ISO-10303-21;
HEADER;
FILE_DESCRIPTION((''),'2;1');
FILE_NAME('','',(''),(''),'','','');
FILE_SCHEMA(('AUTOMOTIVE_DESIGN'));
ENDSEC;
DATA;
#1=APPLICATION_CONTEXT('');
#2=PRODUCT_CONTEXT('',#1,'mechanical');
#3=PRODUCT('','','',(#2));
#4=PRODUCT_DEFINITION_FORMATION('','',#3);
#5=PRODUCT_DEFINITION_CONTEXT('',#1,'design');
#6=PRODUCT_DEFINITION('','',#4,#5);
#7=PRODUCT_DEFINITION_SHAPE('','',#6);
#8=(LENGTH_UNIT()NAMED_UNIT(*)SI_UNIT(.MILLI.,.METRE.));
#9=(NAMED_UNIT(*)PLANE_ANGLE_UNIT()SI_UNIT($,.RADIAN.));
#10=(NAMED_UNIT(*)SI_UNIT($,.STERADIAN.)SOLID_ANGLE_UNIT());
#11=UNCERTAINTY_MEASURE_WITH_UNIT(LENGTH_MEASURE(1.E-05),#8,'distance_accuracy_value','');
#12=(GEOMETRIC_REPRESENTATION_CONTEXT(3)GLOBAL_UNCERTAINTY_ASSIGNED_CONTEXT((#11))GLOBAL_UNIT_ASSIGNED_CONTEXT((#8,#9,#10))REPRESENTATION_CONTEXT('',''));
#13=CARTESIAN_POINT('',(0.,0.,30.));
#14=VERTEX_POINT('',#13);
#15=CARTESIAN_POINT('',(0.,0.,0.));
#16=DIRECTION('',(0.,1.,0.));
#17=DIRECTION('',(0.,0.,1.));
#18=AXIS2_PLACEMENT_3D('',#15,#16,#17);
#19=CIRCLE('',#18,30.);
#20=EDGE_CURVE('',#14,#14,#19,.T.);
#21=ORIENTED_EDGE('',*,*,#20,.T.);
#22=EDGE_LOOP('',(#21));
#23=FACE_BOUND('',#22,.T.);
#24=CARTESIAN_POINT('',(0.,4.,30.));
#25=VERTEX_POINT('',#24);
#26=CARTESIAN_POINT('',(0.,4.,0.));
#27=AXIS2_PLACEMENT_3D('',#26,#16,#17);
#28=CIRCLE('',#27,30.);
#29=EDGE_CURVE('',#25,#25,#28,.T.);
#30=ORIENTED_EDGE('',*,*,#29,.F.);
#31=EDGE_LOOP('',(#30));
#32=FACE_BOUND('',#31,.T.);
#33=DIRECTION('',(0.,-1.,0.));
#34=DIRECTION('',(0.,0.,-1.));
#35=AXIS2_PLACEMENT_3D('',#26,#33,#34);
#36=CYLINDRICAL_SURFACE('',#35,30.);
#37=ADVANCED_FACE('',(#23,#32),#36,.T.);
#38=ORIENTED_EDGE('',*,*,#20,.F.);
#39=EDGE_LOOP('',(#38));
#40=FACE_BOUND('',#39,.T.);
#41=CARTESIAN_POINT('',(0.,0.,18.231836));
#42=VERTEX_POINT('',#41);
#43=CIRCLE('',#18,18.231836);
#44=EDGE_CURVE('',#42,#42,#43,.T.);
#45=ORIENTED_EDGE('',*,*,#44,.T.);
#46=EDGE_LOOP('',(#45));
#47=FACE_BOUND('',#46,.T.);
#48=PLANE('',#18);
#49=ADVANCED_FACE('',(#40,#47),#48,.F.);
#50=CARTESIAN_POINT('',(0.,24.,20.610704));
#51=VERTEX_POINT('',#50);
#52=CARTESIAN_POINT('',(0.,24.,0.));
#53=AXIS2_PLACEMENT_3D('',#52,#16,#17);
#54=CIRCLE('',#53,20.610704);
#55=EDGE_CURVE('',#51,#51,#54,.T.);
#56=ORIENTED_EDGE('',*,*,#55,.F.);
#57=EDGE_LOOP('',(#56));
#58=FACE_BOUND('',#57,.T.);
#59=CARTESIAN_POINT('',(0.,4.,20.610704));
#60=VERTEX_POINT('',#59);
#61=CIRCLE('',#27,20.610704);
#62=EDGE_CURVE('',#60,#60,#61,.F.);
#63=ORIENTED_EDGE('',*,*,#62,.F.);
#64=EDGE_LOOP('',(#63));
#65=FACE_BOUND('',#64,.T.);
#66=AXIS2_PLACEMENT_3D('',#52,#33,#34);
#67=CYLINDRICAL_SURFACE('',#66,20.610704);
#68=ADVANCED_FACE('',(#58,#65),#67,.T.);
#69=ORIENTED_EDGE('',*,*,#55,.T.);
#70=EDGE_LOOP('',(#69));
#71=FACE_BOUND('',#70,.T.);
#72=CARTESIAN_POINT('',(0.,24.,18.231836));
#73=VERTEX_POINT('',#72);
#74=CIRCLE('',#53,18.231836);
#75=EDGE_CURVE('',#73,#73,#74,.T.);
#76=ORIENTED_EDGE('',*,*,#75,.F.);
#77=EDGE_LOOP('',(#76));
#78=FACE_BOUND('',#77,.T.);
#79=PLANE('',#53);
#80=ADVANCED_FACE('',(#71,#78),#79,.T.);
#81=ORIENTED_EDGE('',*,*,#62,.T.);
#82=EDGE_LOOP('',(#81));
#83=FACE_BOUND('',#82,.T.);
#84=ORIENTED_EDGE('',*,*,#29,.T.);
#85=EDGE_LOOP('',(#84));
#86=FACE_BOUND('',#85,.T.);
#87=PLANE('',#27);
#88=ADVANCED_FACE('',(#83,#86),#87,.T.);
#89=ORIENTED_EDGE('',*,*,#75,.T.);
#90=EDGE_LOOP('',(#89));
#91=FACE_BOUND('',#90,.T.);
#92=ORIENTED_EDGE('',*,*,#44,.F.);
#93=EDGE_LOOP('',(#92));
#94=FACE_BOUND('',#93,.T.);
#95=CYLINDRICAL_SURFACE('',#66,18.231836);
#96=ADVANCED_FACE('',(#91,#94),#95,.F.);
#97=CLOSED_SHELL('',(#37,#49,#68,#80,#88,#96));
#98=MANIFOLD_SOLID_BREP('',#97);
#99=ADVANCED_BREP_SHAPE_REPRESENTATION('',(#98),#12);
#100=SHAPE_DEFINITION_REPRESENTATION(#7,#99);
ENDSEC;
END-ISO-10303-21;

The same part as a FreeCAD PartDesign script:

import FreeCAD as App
import Part
import Sketcher
from FreeCAD import Vector

doc = App.newDocument("Part")
body = doc.addObject("PartDesign::Body", "Body")

# Sketch on XZ plane
sketch1 = body.newObject("Sketcher::SketchObject", "Sketch")
sketch1.AttachmentSupport = (doc.getObject("XZ_Plane"), [""])
sketch1.MapMode = "FlatFace"
sketch1.addGeometry(Part.Circle(Vector(0, 0, 0), Vector(0, 0, 1), 30), False)
sketch1.addConstraint([
    Sketcher.Constraint("Coincident", 0, 3, -1, 1),
    Sketcher.Constraint("Diameter", 0, 60.0),
])
pad1 = body.newObject("PartDesign::Pad", "Pad")
pad1.Profile = sketch1
pad1.Length = 4
pad1.Reversed = True

# Sketch on XZ plane
sketch2 = body.newObject("Sketcher::SketchObject", "Sketch001")
sketch2.AttachmentSupport = (doc.getObject("XZ_Plane"), [""])
sketch2.MapMode = "FlatFace"
sketch2.addGeometry(Part.Circle(Vector(0, 0, 0), Vector(0, 0, 1), 21), False)
sketch2.addConstraint([
    Sketcher.Constraint("Coincident", 0, 3, -1, 1),
    Sketcher.Constraint("Diameter", 0, 41.221408),
])
pad2 = body.newObject("PartDesign::Pad", "Pad001")
pad2.Profile = sketch2
pad2.Length = 24
pad2.Reversed = True

# Sketch on XZ plane
sketch3 = body.newObject("Sketcher::SketchObject", "Sketch002")
sketch3.AttachmentSupport = (doc.getObject("XZ_Plane"), [""])
sketch3.MapMode = "FlatFace"
sketch3.addGeometry(Part.Circle(Vector(0, 0, 0), Vector(0, 0, 1), 18), False)
sketch3.addConstraint([
    Sketcher.Constraint("Coincident", 0, 3, -1, 1),
    Sketcher.Constraint("Diameter", 0, 36.463672),
])
pocket1 = body.newObject("PartDesign::Pocket", "Pocket")
pocket1.Profile = sketch3
pocket1.Type = "ThroughAll"

doc.recompute()
